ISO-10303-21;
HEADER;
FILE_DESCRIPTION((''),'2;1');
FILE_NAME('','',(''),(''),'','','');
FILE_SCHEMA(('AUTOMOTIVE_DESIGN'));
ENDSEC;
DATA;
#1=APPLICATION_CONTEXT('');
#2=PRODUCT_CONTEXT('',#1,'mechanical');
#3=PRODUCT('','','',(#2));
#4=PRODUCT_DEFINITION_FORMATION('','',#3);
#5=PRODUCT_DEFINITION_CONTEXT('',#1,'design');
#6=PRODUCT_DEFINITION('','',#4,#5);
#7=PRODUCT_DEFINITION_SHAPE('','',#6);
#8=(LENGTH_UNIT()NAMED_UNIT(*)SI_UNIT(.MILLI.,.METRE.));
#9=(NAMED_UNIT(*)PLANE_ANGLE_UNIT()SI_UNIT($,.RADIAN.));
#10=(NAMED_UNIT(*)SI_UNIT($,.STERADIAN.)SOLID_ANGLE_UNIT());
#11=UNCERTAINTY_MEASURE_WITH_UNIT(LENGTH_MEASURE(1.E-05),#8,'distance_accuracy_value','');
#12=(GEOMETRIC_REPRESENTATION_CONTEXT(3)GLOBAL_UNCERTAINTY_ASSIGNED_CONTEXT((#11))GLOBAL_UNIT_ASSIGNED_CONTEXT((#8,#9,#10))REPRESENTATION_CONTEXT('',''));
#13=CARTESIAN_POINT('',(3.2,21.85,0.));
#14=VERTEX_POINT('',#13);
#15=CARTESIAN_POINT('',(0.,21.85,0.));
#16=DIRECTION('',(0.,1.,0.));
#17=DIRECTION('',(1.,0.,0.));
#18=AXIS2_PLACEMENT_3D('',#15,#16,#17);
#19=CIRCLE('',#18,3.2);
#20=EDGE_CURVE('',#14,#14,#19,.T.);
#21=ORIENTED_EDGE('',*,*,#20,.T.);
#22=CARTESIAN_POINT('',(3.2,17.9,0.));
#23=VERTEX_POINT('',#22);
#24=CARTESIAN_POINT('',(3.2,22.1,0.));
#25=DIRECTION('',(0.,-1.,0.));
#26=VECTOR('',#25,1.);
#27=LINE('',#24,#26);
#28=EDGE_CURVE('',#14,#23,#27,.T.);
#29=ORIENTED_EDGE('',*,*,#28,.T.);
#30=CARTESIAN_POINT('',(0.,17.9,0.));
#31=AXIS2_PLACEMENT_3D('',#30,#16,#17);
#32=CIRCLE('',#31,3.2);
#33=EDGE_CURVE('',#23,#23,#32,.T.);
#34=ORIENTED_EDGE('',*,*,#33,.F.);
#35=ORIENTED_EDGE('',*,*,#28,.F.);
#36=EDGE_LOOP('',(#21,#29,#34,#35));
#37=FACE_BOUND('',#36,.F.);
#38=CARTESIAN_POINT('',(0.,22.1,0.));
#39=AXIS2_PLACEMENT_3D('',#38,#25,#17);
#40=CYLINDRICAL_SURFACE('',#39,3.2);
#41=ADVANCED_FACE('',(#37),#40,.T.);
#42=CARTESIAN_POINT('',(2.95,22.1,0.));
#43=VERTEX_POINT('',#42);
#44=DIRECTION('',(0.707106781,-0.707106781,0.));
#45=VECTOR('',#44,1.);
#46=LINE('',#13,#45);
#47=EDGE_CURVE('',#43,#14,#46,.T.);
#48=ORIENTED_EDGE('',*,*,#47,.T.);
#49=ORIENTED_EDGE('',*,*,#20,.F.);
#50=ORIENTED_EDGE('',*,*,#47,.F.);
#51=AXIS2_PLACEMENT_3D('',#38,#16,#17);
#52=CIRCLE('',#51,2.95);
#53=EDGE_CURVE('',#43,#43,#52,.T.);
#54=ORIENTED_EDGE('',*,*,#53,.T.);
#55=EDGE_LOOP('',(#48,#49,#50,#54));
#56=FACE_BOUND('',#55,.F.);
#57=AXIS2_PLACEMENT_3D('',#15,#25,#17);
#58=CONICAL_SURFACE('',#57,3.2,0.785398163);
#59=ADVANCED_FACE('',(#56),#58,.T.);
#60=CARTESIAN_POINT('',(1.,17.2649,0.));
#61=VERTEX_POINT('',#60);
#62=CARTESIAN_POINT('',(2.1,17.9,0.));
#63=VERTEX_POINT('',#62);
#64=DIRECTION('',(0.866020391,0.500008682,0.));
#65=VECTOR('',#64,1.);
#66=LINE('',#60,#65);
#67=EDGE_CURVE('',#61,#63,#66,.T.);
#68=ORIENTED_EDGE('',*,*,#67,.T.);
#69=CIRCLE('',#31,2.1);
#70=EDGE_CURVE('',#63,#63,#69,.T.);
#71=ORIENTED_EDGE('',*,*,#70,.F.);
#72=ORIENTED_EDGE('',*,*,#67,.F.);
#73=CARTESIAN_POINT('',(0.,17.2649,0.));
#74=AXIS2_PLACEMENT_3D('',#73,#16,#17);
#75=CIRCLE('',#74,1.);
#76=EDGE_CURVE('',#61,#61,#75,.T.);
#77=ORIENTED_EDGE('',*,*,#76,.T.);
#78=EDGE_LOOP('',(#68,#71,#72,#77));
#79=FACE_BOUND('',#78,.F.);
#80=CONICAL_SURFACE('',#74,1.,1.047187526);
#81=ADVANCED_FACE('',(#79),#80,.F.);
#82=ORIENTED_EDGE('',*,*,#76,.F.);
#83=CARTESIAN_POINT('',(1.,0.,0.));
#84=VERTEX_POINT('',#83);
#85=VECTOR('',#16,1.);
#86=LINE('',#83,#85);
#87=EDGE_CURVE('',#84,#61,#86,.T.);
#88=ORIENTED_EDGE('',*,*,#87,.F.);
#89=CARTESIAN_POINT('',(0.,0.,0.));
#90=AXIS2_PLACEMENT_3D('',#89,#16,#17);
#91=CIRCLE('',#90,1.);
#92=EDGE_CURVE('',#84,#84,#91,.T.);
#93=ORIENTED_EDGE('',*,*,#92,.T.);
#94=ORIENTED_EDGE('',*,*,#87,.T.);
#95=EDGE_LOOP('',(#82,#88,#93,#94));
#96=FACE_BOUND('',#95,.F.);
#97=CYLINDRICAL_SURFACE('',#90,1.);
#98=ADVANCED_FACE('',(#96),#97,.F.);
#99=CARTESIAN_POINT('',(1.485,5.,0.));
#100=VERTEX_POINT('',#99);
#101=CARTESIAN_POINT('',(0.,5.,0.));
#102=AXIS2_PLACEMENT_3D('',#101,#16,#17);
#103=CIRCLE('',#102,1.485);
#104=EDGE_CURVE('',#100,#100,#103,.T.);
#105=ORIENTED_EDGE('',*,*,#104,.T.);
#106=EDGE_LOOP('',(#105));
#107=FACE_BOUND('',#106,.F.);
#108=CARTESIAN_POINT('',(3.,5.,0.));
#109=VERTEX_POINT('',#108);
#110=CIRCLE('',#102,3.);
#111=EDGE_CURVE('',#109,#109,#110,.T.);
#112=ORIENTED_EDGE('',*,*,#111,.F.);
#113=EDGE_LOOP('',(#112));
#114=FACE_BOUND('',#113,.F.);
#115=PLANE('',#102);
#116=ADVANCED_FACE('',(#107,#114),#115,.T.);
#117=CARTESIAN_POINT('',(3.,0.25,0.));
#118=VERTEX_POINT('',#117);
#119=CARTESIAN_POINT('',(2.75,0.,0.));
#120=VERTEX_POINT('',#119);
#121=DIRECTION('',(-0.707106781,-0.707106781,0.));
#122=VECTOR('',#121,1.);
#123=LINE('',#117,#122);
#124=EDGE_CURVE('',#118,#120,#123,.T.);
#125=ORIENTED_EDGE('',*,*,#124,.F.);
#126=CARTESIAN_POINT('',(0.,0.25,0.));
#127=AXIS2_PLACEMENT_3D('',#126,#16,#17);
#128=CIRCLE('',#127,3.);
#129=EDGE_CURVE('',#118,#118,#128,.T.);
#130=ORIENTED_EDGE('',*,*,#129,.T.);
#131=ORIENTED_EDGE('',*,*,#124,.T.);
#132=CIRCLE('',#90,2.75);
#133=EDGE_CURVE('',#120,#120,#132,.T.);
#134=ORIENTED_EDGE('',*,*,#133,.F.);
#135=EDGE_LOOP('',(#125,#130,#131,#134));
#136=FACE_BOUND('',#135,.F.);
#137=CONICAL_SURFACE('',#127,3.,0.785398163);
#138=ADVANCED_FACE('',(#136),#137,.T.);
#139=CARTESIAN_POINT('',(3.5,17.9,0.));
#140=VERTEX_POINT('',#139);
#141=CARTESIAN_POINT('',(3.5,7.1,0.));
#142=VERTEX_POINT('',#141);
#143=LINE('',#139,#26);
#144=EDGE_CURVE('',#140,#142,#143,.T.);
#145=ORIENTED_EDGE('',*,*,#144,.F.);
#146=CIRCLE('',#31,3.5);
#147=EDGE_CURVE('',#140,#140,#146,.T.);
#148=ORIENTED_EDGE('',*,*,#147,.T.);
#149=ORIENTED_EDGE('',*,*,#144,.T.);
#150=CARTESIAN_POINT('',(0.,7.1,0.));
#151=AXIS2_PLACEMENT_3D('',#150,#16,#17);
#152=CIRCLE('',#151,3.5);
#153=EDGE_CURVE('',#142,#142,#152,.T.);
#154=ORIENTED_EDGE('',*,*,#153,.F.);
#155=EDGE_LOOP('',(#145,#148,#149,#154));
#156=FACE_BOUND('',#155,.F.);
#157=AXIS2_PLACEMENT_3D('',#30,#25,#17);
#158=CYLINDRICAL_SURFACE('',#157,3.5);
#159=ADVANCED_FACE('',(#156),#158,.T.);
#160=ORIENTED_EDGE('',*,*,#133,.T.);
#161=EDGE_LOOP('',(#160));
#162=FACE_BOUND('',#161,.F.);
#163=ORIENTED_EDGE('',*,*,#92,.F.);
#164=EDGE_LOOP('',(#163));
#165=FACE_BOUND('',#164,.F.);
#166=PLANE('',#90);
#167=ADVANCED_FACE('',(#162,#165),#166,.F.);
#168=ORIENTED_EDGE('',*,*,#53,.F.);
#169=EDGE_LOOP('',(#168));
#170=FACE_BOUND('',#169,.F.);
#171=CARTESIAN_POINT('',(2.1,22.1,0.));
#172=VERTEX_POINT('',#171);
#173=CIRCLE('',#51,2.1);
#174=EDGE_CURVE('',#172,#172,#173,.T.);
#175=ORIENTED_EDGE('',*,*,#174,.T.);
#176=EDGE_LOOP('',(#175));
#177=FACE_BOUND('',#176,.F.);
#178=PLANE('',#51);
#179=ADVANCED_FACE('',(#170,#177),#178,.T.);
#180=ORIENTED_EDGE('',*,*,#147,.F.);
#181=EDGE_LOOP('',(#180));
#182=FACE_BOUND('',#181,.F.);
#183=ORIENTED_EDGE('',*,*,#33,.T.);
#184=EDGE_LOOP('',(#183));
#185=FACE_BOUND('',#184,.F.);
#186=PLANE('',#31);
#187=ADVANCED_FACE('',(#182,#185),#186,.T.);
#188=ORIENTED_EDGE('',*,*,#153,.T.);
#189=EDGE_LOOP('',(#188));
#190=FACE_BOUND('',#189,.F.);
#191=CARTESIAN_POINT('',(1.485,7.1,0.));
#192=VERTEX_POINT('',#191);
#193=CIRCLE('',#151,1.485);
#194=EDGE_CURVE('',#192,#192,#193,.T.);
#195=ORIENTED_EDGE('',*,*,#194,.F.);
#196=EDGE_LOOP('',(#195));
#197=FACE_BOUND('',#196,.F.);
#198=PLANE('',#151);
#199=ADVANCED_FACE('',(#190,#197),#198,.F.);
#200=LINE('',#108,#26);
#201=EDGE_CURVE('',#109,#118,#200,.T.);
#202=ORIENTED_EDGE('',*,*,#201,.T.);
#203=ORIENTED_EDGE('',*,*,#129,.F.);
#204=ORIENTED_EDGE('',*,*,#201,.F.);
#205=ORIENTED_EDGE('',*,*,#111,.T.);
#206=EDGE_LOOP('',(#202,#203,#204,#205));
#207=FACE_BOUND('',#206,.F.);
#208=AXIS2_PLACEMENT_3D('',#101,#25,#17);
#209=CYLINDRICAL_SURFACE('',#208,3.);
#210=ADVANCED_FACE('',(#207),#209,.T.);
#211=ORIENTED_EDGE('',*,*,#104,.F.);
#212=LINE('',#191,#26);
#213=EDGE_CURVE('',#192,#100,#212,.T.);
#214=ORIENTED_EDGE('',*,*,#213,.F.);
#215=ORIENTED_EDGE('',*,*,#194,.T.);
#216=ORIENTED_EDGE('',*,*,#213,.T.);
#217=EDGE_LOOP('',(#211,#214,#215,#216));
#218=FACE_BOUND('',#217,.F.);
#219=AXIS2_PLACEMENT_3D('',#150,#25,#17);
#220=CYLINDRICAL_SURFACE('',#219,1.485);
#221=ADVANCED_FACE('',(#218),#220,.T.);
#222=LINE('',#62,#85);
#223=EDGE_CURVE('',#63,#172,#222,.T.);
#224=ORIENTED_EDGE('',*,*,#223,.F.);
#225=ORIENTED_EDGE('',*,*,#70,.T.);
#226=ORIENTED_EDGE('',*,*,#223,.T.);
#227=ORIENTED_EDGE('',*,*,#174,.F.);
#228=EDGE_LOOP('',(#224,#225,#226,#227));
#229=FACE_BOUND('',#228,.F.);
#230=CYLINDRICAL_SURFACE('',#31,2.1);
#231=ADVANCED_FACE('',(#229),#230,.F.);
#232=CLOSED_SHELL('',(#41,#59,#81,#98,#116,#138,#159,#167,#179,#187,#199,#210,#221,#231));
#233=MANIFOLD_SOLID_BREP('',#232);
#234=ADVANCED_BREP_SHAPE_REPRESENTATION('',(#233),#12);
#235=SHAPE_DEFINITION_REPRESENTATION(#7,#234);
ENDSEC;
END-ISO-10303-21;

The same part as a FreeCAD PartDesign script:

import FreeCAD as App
import Part
import Sketcher
Q = App.Units.Quantity


def edges_at(feature, points):
    """Names of the edges that pass closest to the given points."""
    edges = feature.Shape.Edges
    near = lambda p: min(range(len(edges)), key=lambda i: edges[i].distToShape(Part.Vertex(*p))[0])
    return sorted({f"Edge{near(p) + 1}" for p in points})


def add_polygon(sketch, points):
    """Adds a closed chain of lines whose ends are joined by coincident constraints."""
    first, n = sketch.GeometryCount, len(points)
    for a, b in zip(points, points[1:] + points[:1]):
        sketch.addGeometry(Part.LineSegment(App.Vector(*a, 0), App.Vector(*b, 0)), False)
    for i in range(n):
        sketch.addConstraint(Sketcher.Constraint("Coincident", first + i, 2, first + (i + 1) % n, 1))

doc = App.newDocument("Part")
body = doc.addObject("PartDesign::Body", "Body")

# Sketch on XY plane
sketch1 = body.newObject("Sketcher::SketchObject", "Sketch")
sketch1.AttachmentSupport = (doc.getObject("XY_Plane"), [""])
sketch1.MapMode = "FlatFace"
add_polygon(sketch1, [(1, 17.26), (1, 0), (3, 0), (3, 5), (1.49, 5), (1.49, 7.1), (3.5, 7.1), (3.5, 17.9), (3.2, 17.9), (3.2, 22.1), (2.1, 22.1), (2.1, 17.9)])  # lines 0-11
sketch1.addConstraint([
    Sketcher.Constraint("Vertical", 0),
    Sketcher.Constraint("Horizontal", 1),
    Sketcher.Constraint("Vertical", 2),
    Sketcher.Constraint("Horizontal", 3),
    Sketcher.Constraint("Vertical", 4),
    Sketcher.Constraint("Horizontal", 5),
    Sketcher.Constraint("Vertical", 6),
    Sketcher.Constraint("Horizontal", 7),
    Sketcher.Constraint("Vertical", 8),
    Sketcher.Constraint("Horizontal", 9),
    Sketcher.Constraint("Vertical", 10),
    Sketcher.Constraint("PointOnObject", 0, 2, -1),
    Sketcher.Constraint("Horizontal", 7, 2, 10, 2),
    Sketcher.Constraint("DistanceY", 2, 1, 2, 2, Q("5 mm")),
    Sketcher.Constraint("DistanceY", 4, 1, 4, 2, Q("2.1 mm")),
    Sketcher.Constraint("DistanceY", 8, 1, 8, 2, Q("4.2 mm")),
    Sketcher.Constraint("DistanceX", -1, 1, 0, 2, Q("1 mm")),
    Sketcher.Constraint("DistanceX", -1, 1, 1, 2, Q("3 mm")),
    Sketcher.Constraint("DistanceY", 5, 2, 8, 2, Q("15 mm")),
    Sketcher.Constraint("DistanceX", -1, 1, 5, 2, Q("3.5 mm")),
    Sketcher.Constraint("DistanceX", -1, 1, 7, 2, Q("3.2 mm")),
    Sketcher.Constraint("DistanceX", -1, 1, 9, 2, Q("2.1 mm")),
    Sketcher.Constraint("Angle", 11, Q("-149.9994 deg")),
    Sketcher.Constraint("DistanceX", -1, 1, 3, 2, Q("1.485 mm")),
])
revolution = body.newObject("PartDesign::Revolution", "Revolution")
revolution.Profile = sketch1
revolution.ReferenceAxis = (sketch1, ["V_Axis"])
revolution.Angle = 360
doc.recompute()

chamfer = body.newObject("PartDesign::Chamfer", "Chamfer")
chamfer.Base = (revolution, edges_at(revolution, [(-3.2, 22.1, 0), (-3, 0, 0)]))
chamfer.Size = 0.25

doc.recompute()
